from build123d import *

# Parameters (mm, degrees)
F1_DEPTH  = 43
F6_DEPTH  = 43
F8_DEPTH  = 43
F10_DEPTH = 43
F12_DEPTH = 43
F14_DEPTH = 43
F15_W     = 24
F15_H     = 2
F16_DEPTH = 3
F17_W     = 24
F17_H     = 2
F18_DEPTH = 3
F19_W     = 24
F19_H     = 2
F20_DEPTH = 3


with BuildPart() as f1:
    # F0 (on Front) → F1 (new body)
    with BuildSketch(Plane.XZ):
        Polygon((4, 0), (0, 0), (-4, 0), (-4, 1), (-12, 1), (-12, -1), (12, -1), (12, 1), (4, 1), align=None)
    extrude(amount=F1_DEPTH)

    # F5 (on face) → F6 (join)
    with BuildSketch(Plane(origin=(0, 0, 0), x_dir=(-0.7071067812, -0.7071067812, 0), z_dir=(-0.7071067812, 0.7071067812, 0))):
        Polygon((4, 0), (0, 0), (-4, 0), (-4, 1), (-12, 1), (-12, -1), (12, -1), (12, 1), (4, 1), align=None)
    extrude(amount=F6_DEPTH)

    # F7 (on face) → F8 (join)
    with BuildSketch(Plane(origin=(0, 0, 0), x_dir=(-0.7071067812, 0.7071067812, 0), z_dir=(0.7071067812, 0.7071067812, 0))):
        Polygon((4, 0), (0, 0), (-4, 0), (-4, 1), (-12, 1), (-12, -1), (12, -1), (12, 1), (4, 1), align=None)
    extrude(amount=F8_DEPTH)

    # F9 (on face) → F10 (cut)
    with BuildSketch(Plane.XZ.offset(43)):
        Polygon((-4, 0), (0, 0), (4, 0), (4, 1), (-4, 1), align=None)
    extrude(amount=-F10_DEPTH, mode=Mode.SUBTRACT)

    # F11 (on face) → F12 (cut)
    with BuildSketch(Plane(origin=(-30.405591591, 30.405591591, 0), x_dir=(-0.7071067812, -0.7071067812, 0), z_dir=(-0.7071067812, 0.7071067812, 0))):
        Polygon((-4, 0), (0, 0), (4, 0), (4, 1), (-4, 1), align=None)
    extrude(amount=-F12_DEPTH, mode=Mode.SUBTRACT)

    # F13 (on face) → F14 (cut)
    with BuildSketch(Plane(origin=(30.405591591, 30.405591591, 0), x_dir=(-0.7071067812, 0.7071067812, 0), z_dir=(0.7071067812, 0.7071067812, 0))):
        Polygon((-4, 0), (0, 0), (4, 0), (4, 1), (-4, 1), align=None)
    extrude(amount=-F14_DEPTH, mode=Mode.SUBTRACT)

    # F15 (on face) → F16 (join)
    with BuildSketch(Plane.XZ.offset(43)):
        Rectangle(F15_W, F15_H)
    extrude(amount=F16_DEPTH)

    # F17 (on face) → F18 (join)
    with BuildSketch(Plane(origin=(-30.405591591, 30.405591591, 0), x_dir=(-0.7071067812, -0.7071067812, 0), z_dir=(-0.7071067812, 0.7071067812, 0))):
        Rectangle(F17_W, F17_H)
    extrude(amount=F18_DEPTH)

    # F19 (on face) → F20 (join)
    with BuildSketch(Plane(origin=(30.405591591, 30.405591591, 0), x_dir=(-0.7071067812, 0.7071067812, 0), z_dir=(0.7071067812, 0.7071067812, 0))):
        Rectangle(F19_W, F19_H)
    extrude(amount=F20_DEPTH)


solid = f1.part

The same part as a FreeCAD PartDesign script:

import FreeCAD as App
import Part
import Sketcher
Q = App.Units.Quantity

doc = App.newDocument("Part")
params = doc.addObject("Spreadsheet::Sheet", "Params")
for row, (alias, value) in enumerate([
    ("sketch1_width", "8 mm"),
    ("sketch1_height", "1 mm"),
    ("pad1_length", "43 mm"),
    ("sketch2_width", "8 mm"),
    ("sketch2_height", "1 mm"),
    ("pad2_length", "43 mm"),
    ("sketch3_width", "8 mm"),
    ("sketch3_height", "1 mm"),
    ("pad3_length", "43 mm"),
    ("sketch4_width", "8 mm"),
    ("sketch4_height", "1 mm"),
    ("pocket1_length", "43 mm"),
    ("sketch5_width", "8 mm"),
    ("sketch5_height", "1 mm"),
    ("pocket2_length", "43 mm"),
    ("sketch6_width", "8 mm"),
    ("sketch6_height", "1 mm"),
    ("pocket3_length", "43 mm"),
    ("sketch7_width", "24 mm"),
    ("sketch7_height", "2 mm"),
    ("pad4_length", "3 mm"),
    ("sketch8_width", "24 mm"),
    ("sketch8_height", "2 mm"),
    ("pad5_length", "3 mm"),
    ("sketch9_width", "24 mm"),
    ("sketch9_height", "2 mm"),
    ("pad6_length", "3 mm"),
], start=1):
    params.set(f"A{row}", alias)
    params.set(f"B{row}", "=" + value)
    params.setAlias(f"B{row}", alias)

body = doc.addObject("PartDesign::Body", "Body")

sketch1 = doc.addObject("Sketcher::SketchObject", "Sketch")
body.addObject(sketch1)
sketch1.AttachmentSupport = (doc.XZ_Plane, [""])
sketch1.MapMode = "FlatFace"
sketch1.addGeometry(Part.LineSegment(App.Vector(4, 0, 0), App.Vector(-4, 0, 0)), False)
sketch1.addGeometry(Part.LineSegment(App.Vector(-4, 0, 0), App.Vector(-4, 1, 0)), False)
sketch1.addGeometry(Part.LineSegment(App.Vector(-4, 1, 0), App.Vector(-12, 1, 0)), False)
sketch1.addGeometry(Part.LineSegment(App.Vector(-12, 1, 0), App.Vector(-12, -1, 0)), False)
sketch1.addGeometry(Part.LineSegment(App.Vector(-12, -1, 0), App.Vector(12, -1, 0)), False)
sketch1.addGeometry(Part.LineSegment(App.Vector(12, -1, 0), App.Vector(12, 1, 0)), False)
sketch1.addGeometry(Part.LineSegment(App.Vector(12, 1, 0), App.Vector(4, 1, 0)), False)
sketch1.addGeometry(Part.LineSegment(App.Vector(4, 1, 0), App.Vector(4, 0, 0)), False)
sketch1.addConstraint(Sketcher.Constraint("Coincident", 0, 2, 1, 1))
sketch1.addConstraint(Sketcher.Constraint("Coincident", 1, 2, 2, 1))
sketch1.addConstraint(Sketcher.Constraint("Coincident", 2, 2, 3, 1))
sketch1.addConstraint(Sketcher.Constraint("Coincident", 3, 2, 4, 1))
sketch1.addConstraint(Sketcher.Constraint("Coincident", 4, 2, 5, 1))
sketch1.addConstraint(Sketcher.Constraint("Coincident", 5, 2, 6, 1))
sketch1.addConstraint(Sketcher.Constraint("Coincident", 6, 2, 7, 1))
sketch1.addConstraint(Sketcher.Constraint("Coincident", 7, 2, 0, 1))
sketch1.addConstraint(Sketcher.Constraint("Horizontal", 0))
sketch1.addConstraint(Sketcher.Constraint("Vertical", 1))
sketch1.addConstraint(Sketcher.Constraint("Horizontal", 2))
sketch1.addConstraint(Sketcher.Constraint("Vertical", 3))
sketch1.addConstraint(Sketcher.Constraint("Horizontal", 4))
sketch1.addConstraint(Sketcher.Constraint("Vertical", 5))
sketch1.addConstraint(Sketcher.Constraint("Horizontal", 6))
sketch1.addConstraint(Sketcher.Constraint("Vertical", 7))
sketch1.addConstraint(Sketcher.Constraint("Symmetric", 2, 2, 4, 2, -1, 1))
sketch1.addConstraint(Sketcher.Constraint("Symmetric", 0, 2, 7, 2, -1, 1))
sketch1.addConstraint(Sketcher.Constraint("Horizontal", 2, 2, 5, 2))
sketch1.addConstraint(Sketcher.Constraint("Equal", 0, 2))
sketch1.addConstraint(Sketcher.Constraint("DistanceX", 0, 2, 0, 1, Q("8 mm")))
sketch1.addConstraint(Sketcher.Constraint("DistanceY", 1, 1, 1, 2, Q("1 mm")))
sketch1.setExpression("Constraints[20]", "Params.sketch1_width")
sketch1.setExpression("Constraints[21]", "Params.sketch1_height")
pad1 = doc.addObject("PartDesign::Pad", "Pad")
body.addObject(pad1)
pad1.Profile = sketch1
pad1.setExpression("Length", "Params.pad1_length")

sketch2 = doc.addObject("Sketcher::SketchObject", "Sketch001")
body.addObject(sketch2)
sketch2.Placement = App.Placement(App.Vector(0, 0, 0), App.Rotation(App.Vector(-0.707106781, -0.707106781, 0), App.Vector(0, 0, 0.999999999), App.Vector(-0.707106781, 0.707106781, 0), "ZXY"))
sketch2.addGeometry(Part.LineSegment(App.Vector(4, 0, 0), App.Vector(-4, 0, 0)), False)
sketch2.addGeometry(Part.LineSegment(App.Vector(-4, 0, 0), App.Vector(-4, 1, 0)), False)
sketch2.addGeometry(Part.LineSegment(App.Vector(-4, 1, 0), App.Vector(-12, 1, 0)), False)
sketch2.addGeometry(Part.LineSegment(App.Vector(-12, 1, 0), App.Vector(-12, -1, 0)), False)
sketch2.addGeometry(Part.LineSegment(App.Vector(-12, -1, 0), App.Vector(12, -1, 0)), False)
sketch2.addGeometry(Part.LineSegment(App.Vector(12, -1, 0), App.Vector(12, 1, 0)), False)
sketch2.addGeometry(Part.LineSegment(App.Vector(12, 1, 0), App.Vector(4, 1, 0)), False)
sketch2.addGeometry(Part.LineSegment(App.Vector(4, 1, 0), App.Vector(4, 0, 0)), False)
sketch2.addConstraint(Sketcher.Constraint("Coincident", 0, 2, 1, 1))
sketch2.addConstraint(Sketcher.Constraint("Coincident", 1, 2, 2, 1))
sketch2.addConstraint(Sketcher.Constraint("Coincident", 2, 2, 3, 1))
sketch2.addConstraint(Sketcher.Constraint("Coincident", 3, 2, 4, 1))
sketch2.addConstraint(Sketcher.Constraint("Coincident", 4, 2, 5, 1))
sketch2.addConstraint(Sketcher.Constraint("Coincident", 5, 2, 6, 1))
sketch2.addConstraint(Sketcher.Constraint("Coincident", 6, 2, 7, 1))
sketch2.addConstraint(Sketcher.Constraint("Coincident", 7, 2, 0, 1))
sketch2.addConstraint(Sketcher.Constraint("Horizontal", 0))
sketch2.addConstraint(Sketcher.Constraint("Vertical", 1))
sketch2.addConstraint(Sketcher.Constraint("Horizontal", 2))
sketch2.addConstraint(Sketcher.Constraint("Vertical", 3))
sketch2.addConstraint(Sketcher.Constraint("Horizontal", 4))
sketch2.addConstraint(Sketcher.Constraint("Vertical", 5))
sketch2.addConstraint(Sketcher.Constraint("Horizontal", 6))
sketch2.addConstraint(Sketcher.Constraint("Vertical", 7))
sketch2.addConstraint(Sketcher.Constraint("Symmetric", 2, 2, 4, 2, -1, 1))
sketch2.addConstraint(Sketcher.Constraint("Symmetric", 0, 2, 7, 2, -1, 1))
sketch2.addConstraint(Sketcher.Constraint("Horizontal", 2, 2, 5, 2))
sketch2.addConstraint(Sketcher.Constraint("Equal", 0, 2))
sketch2.addConstraint(Sketcher.Constraint("DistanceX", 0, 2, 0, 1, Q("8 mm")))
sketch2.addConstraint(Sketcher.Constraint("DistanceY", 1, 1, 1, 2, Q("1 mm")))
sketch2.setExpression("Constraints[20]", "Params.sketch2_width")
sketch2.setExpression("Constraints[21]", "Params.sketch2_height")
pad2 = doc.addObject("PartDesign::Pad", "Pad001")
body.addObject(pad2)
pad2.Profile = sketch2
pad2.setExpression("Length", "Params.pad2_length")

sketch3 = doc.addObject("Sketcher::SketchObject", "Sketch002")
body.addObject(sketch3)
sketch3.Placement = App.Placement(App.Vector(0, 0, 0), App.Rotation(App.Vector(-0.707106781, 0.707106781, 0), App.Vector(0, 0, 0.999999999), App.Vector(0.707106781, 0.707106781, 0), "ZXY"))
sketch3.addGeometry(Part.LineSegment(App.Vector(4, 0, 0), App.Vector(-4, 0, 0)), False)
sketch3.addGeometry(Part.LineSegment(App.Vector(-4, 0, 0), App.Vector(-4, 1, 0)), False)
sketch3.addGeometry(Part.LineSegment(App.Vector(-4, 1, 0), App.Vector(-12, 1, 0)), False)
sketch3.addGeometry(Part.LineSegment(App.Vector(-12, 1, 0), App.Vector(-12, -1, 0)), False)
sketch3.addGeometry(Part.LineSegment(App.Vector(-12, -1, 0), App.Vector(12, -1, 0)), False)
sketch3.addGeometry(Part.LineSegment(App.Vector(12, -1, 0), App.Vector(12, 1, 0)), False)
sketch3.addGeometry(Part.LineSegment(App.Vector(12, 1, 0), App.Vector(4, 1, 0)), False)
sketch3.addGeometry(Part.LineSegment(App.Vector(4, 1, 0), App.Vector(4, 0, 0)), False)
sketch3.addConstraint(Sketcher.Constraint("Coincident", 0, 2, 1, 1))
sketch3.addConstraint(Sketcher.Constraint("Coincident", 1, 2, 2, 1))
sketch3.addConstraint(Sketcher.Constraint("Coincident", 2, 2, 3, 1))
sketch3.addConstraint(Sketcher.Constraint("Coincident", 3, 2, 4, 1))
sketch3.addConstraint(Sketcher.Constraint("Coincident", 4, 2, 5, 1))
sketch3.addConstraint(Sketcher.Constraint("Coincident", 5, 2, 6, 1))
sketch3.addConstraint(Sketcher.Constraint("Coincident", 6, 2, 7, 1))
sketch3.addConstraint(Sketcher.Constraint("Coincident", 7, 2, 0, 1))
sketch3.addConstraint(Sketcher.Constraint("Horizontal", 0))
sketch3.addConstraint(Sketcher.Constraint("Vertical", 1))
sketch3.addConstraint(Sketcher.Constraint("Horizontal", 2))
sketch3.addConstraint(Sketcher.Constraint("Vertical", 3))
sketch3.addConstraint(Sketcher.Constraint("Horizontal", 4))
sketch3.addConstraint(Sketcher.Constraint("Vertical", 5))
sketch3.addConstraint(Sketcher.Constraint("Horizontal", 6))
sketch3.addConstraint(Sketcher.Constraint("Vertical", 7))
sketch3.addConstraint(Sketcher.Constraint("Symmetric", 2, 2, 4, 2, -1, 1))
sketch3.addConstraint(Sketcher.Constraint("Symmetric", 0, 2, 7, 2, -1, 1))
sketch3.addConstraint(Sketcher.Constraint("Horizontal", 2, 2, 5, 2))
sketch3.addConstraint(Sketcher.Constraint("Equal", 0, 2))
sketch3.addConstraint(Sketcher.Constraint("DistanceX", 0, 2, 0, 1, Q("8 mm")))
sketch3.addConstraint(Sketcher.Constraint("DistanceY", 1, 1, 1, 2, Q("1 mm")))
sketch3.setExpression("Constraints[20]", "Params.sketch3_width")
sketch3.setExpression("Constraints[21]", "Params.sketch3_height")
pad3 = doc.addObject("PartDesign::Pad", "Pad002")
body.addObject(pad3)
pad3.Profile = sketch3
pad3.setExpression("Length", "Params.pad3_length")

sketch4 = doc.addObject("Sketcher::SketchObject", "Sketch003")
body.addObject(sketch4)
sketch4.AttachmentSupport = (doc.XZ_Plane, [""])
sketch4.MapMode = "FlatFace"
sketch4.AttachmentOffset = App.Placement(App.Vector(0, 0, 43), App.Rotation())
sketch4.addGeometry(Part.LineSegment(App.Vector(-4, 0, 0), App.Vector(4, 0, 0)), False)
sketch4.addGeometry(Part.LineSegment(App.Vector(4, 0, 0), App.Vector(4, 1, 0)), False)
sketch4.addGeometry(Part.LineSegment(App.Vector(4, 1, 0), App.Vector(-4, 1, 0)), False)
sketch4.addGeometry(Part.LineSegment(App.Vector(-4, 1, 0), App.Vector(-4, 0, 0)), False)
sketch4.addConstraint(Sketcher.Constraint("Coincident", 0, 2, 1, 1))
sketch4.addConstraint(Sketcher.Constraint("Coincident", 1, 2, 2, 1))
sketch4.addConstraint(Sketcher.Constraint("Coincident", 2, 2, 3, 1))
sketch4.addConstraint(Sketcher.Constraint("Coincident", 3, 2, 0, 1))
sketch4.addConstraint(Sketcher.Constraint("Horizontal", 0))
sketch4.addConstraint(Sketcher.Constraint("Vertical", 1))
sketch4.addConstraint(Sketcher.Constraint("Horizontal", 2))
sketch4.addConstraint(Sketcher.Constraint("Vertical", 3))
sketch4.addConstraint(Sketcher.Constraint("Symmetric", 0, 2, 3, 2, -1, 1))
sketch4.addConstraint(Sketcher.Constraint("DistanceX", 0, 1, 0, 2, Q("8 mm")))
sketch4.addConstraint(Sketcher.Constraint("DistanceY", 1, 1, 1, 2, Q("1 mm")))
sketch4.setExpression("Constraints[9]", "Params.sketch4_width")
sketch4.setExpression("Constraints[10]", "Params.sketch4_height")
pocket1 = doc.addObject("PartDesign::Pocket", "Pocket")
body.addObject(pocket1)
pocket1.Profile = sketch4
pocket1.setExpression("Length", "Params.pocket1_length")

sketch5 = doc.addObject("Sketcher::SketchObject", "Sketch004")
body.addObject(sketch5)
sketch5.Placement = App.Placement(App.Vector(-30.405592, 30.405592, 0), App.Rotation(App.Vector(-0.707106781, -0.707106781, 0), App.Vector(0, 0, 0.999999999), App.Vector(-0.707106781, 0.707106781, 0), "ZXY"))
sketch5.addGeometry(Part.LineSegment(App.Vector(-4, 0, 0), App.Vector(4, 0, 0)), False)
sketch5.addGeometry(Part.LineSegment(App.Vector(4, 0, 0), App.Vector(4, 1, 0)), False)
sketch5.addGeometry(Part.LineSegment(App.Vector(4, 1, 0), App.Vector(-4, 1, 0)), False)
sketch5.addGeometry(Part.LineSegment(App.Vector(-4, 1, 0), App.Vector(-4, 0, 0)), False)
sketch5.addConstraint(Sketcher.Constraint("Coincident", 0, 2, 1, 1))
sketch5.addConstraint(Sketcher.Constraint("Coincident", 1, 2, 2, 1))
sketch5.addConstraint(Sketcher.Constraint("Coincident", 2, 2, 3, 1))
sketch5.addConstraint(Sketcher.Constraint("Coincident", 3, 2, 0, 1))
sketch5.addConstraint(Sketcher.Constraint("Horizontal", 0))
sketch5.addConstraint(Sketcher.Constraint("Vertical", 1))
sketch5.addConstraint(Sketcher.Constraint("Horizontal", 2))
sketch5.addConstraint(Sketcher.Constraint("Vertical", 3))
sketch5.addConstraint(Sketcher.Constraint("Symmetric", 0, 2, 3, 2, -1, 1))
sketch5.addConstraint(Sketcher.Constraint("DistanceX", 0, 1, 0, 2, Q("8 mm")))
sketch5.addConstraint(Sketcher.Constraint("DistanceY", 1, 1, 1, 2, Q("1 mm")))
sketch5.setExpression("Constraints[9]", "Params.sketch5_width")
sketch5.setExpression("Constraints[10]", "Params.sketch5_height")
pocket2 = doc.addObject("PartDesign::Pocket", "Pocket001")
body.addObject(pocket2)
pocket2.Profile = sketch5
pocket2.setExpression("Length", "Params.pocket2_length")

sketch6 = doc.addObject("Sketcher::SketchObject", "Sketch005")
body.addObject(sketch6)
sketch6.Placement = App.Placement(App.Vector(30.405592, 30.405592, 0), App.Rotation(App.Vector(-0.707106781, 0.707106781, 0), App.Vector(0, 0, 0.999999999), App.Vector(0.707106781, 0.707106781, 0), "ZXY"))
sketch6.addGeometry(Part.LineSegment(App.Vector(-4, 0, 0), App.Vector(4, 0, 0)), False)
sketch6.addGeometry(Part.LineSegment(App.Vector(4, 0, 0), App.Vector(4, 1, 0)), False)
sketch6.addGeometry(Part.LineSegment(App.Vector(4, 1, 0), App.Vector(-4, 1, 0)), False)
sketch6.addGeometry(Part.LineSegment(App.Vector(-4, 1, 0), App.Vector(-4, 0, 0)), False)
sketch6.addConstraint(Sketcher.Constraint("Coincident", 0, 2, 1, 1))
sketch6.addConstraint(Sketcher.Constraint("Coincident", 1, 2, 2, 1))
sketch6.addConstraint(Sketcher.Constraint("Coincident", 2, 2, 3, 1))
sketch6.addConstraint(Sketcher.Constraint("Coincident", 3, 2, 0, 1))
sketch6.addConstraint(Sketcher.Constraint("Horizontal", 0))
sketch6.addConstraint(Sketcher.Constraint("Vertical", 1))
sketch6.addConstraint(Sketcher.Constraint("Horizontal", 2))
sketch6.addConstraint(Sketcher.Constraint("Vertical", 3))
sketch6.addConstraint(Sketcher.Constraint("Symmetric", 0, 2, 3, 2, -1, 1))
sketch6.addConstraint(Sketcher.Constraint("DistanceX", 0, 1, 0, 2, Q("8 mm")))
sketch6.addConstraint(Sketcher.Constraint("DistanceY", 1, 1, 1, 2, Q("1 mm")))
sketch6.setExpression("Constraints[9]", "Params.sketch6_width")
sketch6.setExpression("Constraints[10]", "Params.sketch6_height")
pocket3 = doc.addObject("PartDesign::Pocket", "Pocket002")
body.addObject(pocket3)
pocket3.Profile = sketch6
pocket3.setExpression("Length", "Params.pocket3_length")

sketch7 = doc.addObject("Sketcher::SketchObject", "Sketch006")
body.addObject(sketch7)
sketch7.AttachmentSupport = (doc.XZ_Plane, [""])
sketch7.MapMode = "FlatFace"
sketch7.AttachmentOffset = App.Placement(App.Vector(0, 0, 43), App.Rotation())
sketch7.addGeometry(Part.LineSegment(App.Vector(-12, 1, 0), App.Vector(-12, -1, 0)), False)
sketch7.addGeometry(Part.LineSegment(App.Vector(-12, -1, 0), App.Vector(12, -1, 0)), False)
sketch7.addGeometry(Part.LineSegment(App.Vector(12, -1, 0), App.Vector(12, 1, 0)), False)
sketch7.addGeometry(Part.LineSegment(App.Vector(12, 1, 0), App.Vector(-12, 1, 0)), False)
sketch7.addConstraint(Sketcher.Constraint("Coincident", 0, 2, 1, 1))
sketch7.addConstraint(Sketcher.Constraint("Coincident", 1, 2, 2, 1))
sketch7.addConstraint(Sketcher.Constraint("Coincident", 2, 2, 3, 1))
sketch7.addConstraint(Sketcher.Constraint("Coincident", 3, 2, 0, 1))
sketch7.addConstraint(Sketcher.Constraint("Vertical", 0))
sketch7.addConstraint(Sketcher.Constraint("Horizontal", 1))
sketch7.addConstraint(Sketcher.Constraint("Vertical", 2))
sketch7.addConstraint(Sketcher.Constraint("Horizontal", 3))
sketch7.addConstraint(Sketcher.Constraint("Symmetric", 0, 2, 2, 2, -1, 1))
sketch7.addConstraint(Sketcher.Constraint("DistanceX", 1, 1, 1, 2, Q("24 mm")))
sketch7.addConstraint(Sketcher.Constraint("DistanceY", 0, 2, 0, 1, Q("2 mm")))
sketch7.setExpression("Constraints[9]", "Params.sketch7_width")
sketch7.setExpression("Constraints[10]", "Params.sketch7_height")
pad4 = doc.addObject("PartDesign::Pad", "Pad003")
body.addObject(pad4)
pad4.Profile = sketch7
pad4.setExpression("Length", "Params.pad4_length")

sketch8 = doc.addObject("Sketcher::SketchObject", "Sketch007")
body.addObject(sketch8)
sketch8.Placement = App.Placement(App.Vector(-30.405592, 30.405592, 0), App.Rotation(App.Vector(-0.707106781, -0.707106781, 0), App.Vector(0, 0, 0.999999999), App.Vector(-0.707106781, 0.707106781, 0), "ZXY"))
sketch8.addGeometry(Part.LineSegment(App.Vector(-12, 1, 0), App.Vector(-12, -1, 0)), False)
sketch8.addGeometry(Part.LineSegment(App.Vector(-12, -1, 0), App.Vector(12, -1, 0)), False)
sketch8.addGeometry(Part.LineSegment(App.Vector(12, -1, 0), App.Vector(12, 1, 0)), False)
sketch8.addGeometry(Part.LineSegment(App.Vector(12, 1, 0), App.Vector(-12, 1, 0)), False)
sketch8.addConstraint(Sketcher.Constraint("Coincident", 0, 2, 1, 1))
sketch8.addConstraint(Sketcher.Constraint("Coincident", 1, 2, 2, 1))
sketch8.addConstraint(Sketcher.Constraint("Coincident", 2, 2, 3, 1))
sketch8.addConstraint(Sketcher.Constraint("Coincident", 3, 2, 0, 1))
sketch8.addConstraint(Sketcher.Constraint("Vertical", 0))
sketch8.addConstraint(Sketcher.Constraint("Horizontal", 1))
sketch8.addConstraint(Sketcher.Constraint("Vertical", 2))
sketch8.addConstraint(Sketcher.Constraint("Horizontal", 3))
sketch8.addConstraint(Sketcher.Constraint("Symmetric", 0, 2, 2, 2, -1, 1))
sketch8.addConstraint(Sketcher.Constraint("DistanceX", 1, 1, 1, 2, Q("24 mm")))
sketch8.addConstraint(Sketcher.Constraint("DistanceY", 0, 2, 0, 1, Q("2 mm")))
sketch8.setExpression("Constraints[9]", "Params.sketch8_width")
sketch8.setExpression("Constraints[10]", "Params.sketch8_height")
pad5 = doc.addObject("PartDesign::Pad", "Pad004")
body.addObject(pad5)
pad5.Profile = sketch8
pad5.setExpression("Length", "Params.pad5_length")

sketch9 = doc.addObject("Sketcher::SketchObject", "Sketch008")
body.addObject(sketch9)
sketch9.Placement = App.Placement(App.Vector(30.405592, 30.405592, 0), App.Rotation(App.Vector(-0.707106781, 0.707106781, 0), App.Vector(0, 0, 0.999999999), App.Vector(0.707106781, 0.707106781, 0), "ZXY"))
sketch9.addGeometry(Part.LineSegment(App.Vector(-12, 1, 0), App.Vector(-12, -1, 0)), False)
sketch9.addGeometry(Part.LineSegment(App.Vector(-12, -1, 0), App.Vector(12, -1, 0)), False)
sketch9.addGeometry(Part.LineSegment(App.Vector(12, -1, 0), App.Vector(12, 1, 0)), False)
sketch9.addGeometry(Part.LineSegment(App.Vector(12, 1, 0), App.Vector(-12, 1, 0)), False)
sketch9.addConstraint(Sketcher.Constraint("Coincident", 0, 2, 1, 1))
sketch9.addConstraint(Sketcher.Constraint("Coincident", 1, 2, 2, 1))
sketch9.addConstraint(Sketcher.Constraint("Coincident", 2, 2, 3, 1))
sketch9.addConstraint(Sketcher.Constraint("Coincident", 3, 2, 0, 1))
sketch9.addConstraint(Sketcher.Constraint("Vertical", 0))
sketch9.addConstraint(Sketcher.Constraint("Horizontal", 1))
sketch9.addConstraint(Sketcher.Constraint("Vertical", 2))
sketch9.addConstraint(Sketcher.Constraint("Horizontal", 3))
sketch9.addConstraint(Sketcher.Constraint("Symmetric", 0, 2, 2, 2, -1, 1))
sketch9.addConstraint(Sketcher.Constraint("DistanceX", 1, 1, 1, 2, Q("24 mm")))
sketch9.addConstraint(Sketcher.Constraint("DistanceY", 0, 2, 0, 1, Q("2 mm")))
sketch9.setExpression("Constraints[9]", "Params.sketch9_width")
sketch9.setExpression("Constraints[10]", "Params.sketch9_height")
pad6 = doc.addObject("PartDesign::Pad", "Pad005")
body.addObject(pad6)
pad6.Profile = sketch9
pad6.setExpression("Length", "Params.pad6_length")

doc.recompute()
